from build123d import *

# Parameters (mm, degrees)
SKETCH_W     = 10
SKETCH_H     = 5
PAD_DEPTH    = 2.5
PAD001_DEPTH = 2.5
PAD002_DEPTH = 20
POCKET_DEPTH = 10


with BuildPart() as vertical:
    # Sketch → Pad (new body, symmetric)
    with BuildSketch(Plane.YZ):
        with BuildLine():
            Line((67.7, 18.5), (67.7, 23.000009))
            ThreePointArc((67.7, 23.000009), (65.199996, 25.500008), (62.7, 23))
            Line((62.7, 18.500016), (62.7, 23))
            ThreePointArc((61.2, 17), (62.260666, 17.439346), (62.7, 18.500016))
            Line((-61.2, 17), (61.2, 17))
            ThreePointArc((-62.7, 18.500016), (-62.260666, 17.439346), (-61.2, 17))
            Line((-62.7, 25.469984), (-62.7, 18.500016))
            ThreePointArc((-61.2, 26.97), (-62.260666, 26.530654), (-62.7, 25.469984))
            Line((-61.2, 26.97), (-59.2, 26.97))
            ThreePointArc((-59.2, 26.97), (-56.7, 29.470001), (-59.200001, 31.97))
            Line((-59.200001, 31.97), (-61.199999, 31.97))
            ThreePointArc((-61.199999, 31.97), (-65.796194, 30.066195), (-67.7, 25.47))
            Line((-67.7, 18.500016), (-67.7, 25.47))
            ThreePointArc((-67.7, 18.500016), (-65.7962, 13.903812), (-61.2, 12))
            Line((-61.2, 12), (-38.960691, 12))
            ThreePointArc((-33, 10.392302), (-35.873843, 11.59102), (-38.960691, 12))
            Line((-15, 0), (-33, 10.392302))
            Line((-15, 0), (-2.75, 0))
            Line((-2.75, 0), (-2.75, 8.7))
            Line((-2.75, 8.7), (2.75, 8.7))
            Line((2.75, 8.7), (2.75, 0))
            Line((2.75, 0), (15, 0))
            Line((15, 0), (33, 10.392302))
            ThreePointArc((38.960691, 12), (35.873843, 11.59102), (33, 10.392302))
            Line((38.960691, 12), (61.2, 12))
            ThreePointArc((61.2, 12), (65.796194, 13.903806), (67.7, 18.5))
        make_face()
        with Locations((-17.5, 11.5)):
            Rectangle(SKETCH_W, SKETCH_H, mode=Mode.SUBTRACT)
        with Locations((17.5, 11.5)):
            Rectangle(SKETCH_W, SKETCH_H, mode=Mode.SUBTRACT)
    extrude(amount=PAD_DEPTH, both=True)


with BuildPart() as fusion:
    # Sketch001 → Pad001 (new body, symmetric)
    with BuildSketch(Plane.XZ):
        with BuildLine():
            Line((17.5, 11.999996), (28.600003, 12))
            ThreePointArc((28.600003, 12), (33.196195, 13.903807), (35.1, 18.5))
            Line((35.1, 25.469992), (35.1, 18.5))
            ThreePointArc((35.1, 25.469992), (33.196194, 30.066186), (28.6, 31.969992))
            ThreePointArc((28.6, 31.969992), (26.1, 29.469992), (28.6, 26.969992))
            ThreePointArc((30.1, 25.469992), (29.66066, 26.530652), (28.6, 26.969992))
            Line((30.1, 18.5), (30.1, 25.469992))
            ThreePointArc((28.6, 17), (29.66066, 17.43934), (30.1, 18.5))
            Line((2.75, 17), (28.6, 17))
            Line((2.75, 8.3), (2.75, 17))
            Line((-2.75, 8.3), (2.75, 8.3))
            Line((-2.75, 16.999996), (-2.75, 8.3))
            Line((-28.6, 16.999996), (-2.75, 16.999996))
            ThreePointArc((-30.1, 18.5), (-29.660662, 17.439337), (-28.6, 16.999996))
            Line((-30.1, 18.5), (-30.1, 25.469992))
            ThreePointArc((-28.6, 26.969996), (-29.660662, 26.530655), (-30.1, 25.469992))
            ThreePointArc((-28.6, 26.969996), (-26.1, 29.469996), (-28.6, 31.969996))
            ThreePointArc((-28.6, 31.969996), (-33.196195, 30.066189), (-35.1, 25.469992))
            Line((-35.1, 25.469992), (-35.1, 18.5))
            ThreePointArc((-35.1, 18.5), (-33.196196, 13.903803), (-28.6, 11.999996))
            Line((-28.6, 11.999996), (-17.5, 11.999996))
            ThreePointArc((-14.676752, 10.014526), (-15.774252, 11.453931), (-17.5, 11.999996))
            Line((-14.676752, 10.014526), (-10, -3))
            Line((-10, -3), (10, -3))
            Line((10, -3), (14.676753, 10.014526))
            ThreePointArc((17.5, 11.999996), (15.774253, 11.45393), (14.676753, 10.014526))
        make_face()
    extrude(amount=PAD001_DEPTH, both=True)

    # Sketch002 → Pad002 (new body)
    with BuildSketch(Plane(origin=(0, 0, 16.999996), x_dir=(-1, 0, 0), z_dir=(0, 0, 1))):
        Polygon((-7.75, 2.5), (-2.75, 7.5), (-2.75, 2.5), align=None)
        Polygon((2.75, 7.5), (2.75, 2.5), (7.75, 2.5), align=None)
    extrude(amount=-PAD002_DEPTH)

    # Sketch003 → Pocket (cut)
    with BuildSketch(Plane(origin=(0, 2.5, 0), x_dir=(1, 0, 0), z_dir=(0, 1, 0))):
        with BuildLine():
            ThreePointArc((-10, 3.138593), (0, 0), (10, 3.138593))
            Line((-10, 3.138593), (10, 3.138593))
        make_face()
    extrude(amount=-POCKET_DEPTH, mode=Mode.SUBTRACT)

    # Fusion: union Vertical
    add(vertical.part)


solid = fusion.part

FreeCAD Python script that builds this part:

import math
import FreeCAD as App
import Part
import Sketcher
Q = App.Units.Quantity


def add_polygon(sketch, points):
    """Adds a closed chain of lines whose ends are joined by coincident constraints."""
    first, n = sketch.GeometryCount, len(points)
    for a, b in zip(points, points[1:] + points[:1]):
        sketch.addGeometry(Part.LineSegment(App.Vector(*a, 0), App.Vector(*b, 0)), False)
    for i in range(n):
        sketch.addConstraint(Sketcher.Constraint("Coincident", first + i, 2, first + (i + 1) % n, 1))

doc = App.newDocument("Part")
body = doc.addObject("PartDesign::Body", "Body")

# Sketch on YZ plane
sketch1 = body.newObject("Sketcher::SketchObject", "Sketch")
sketch1.AttachmentSupport = (doc.getObject("YZ_Plane"), [""])
sketch1.MapMode = "FlatFace"
sketch1.addGeometry(Part.LineSegment(App.Vector(67.7, 18.5, 0), App.Vector(67.7, 23, 0)), False)  # 0
sketch1.addGeometry(Part.ArcOfCircle(Part.Circle(App.Vector(65.2, 23, 0), App.Vector(0, 0, 1), 2.5), math.radians(0), math.radians(180)), False)  # 1
sketch1.addGeometry(Part.LineSegment(App.Vector(62.7, 23, 0), App.Vector(62.7, 18.5, 0)), False)  # 2
sketch1.addGeometry(Part.ArcOfCircle(Part.Circle(App.Vector(61.2, 18.5, 0), App.Vector(0, 0, 1), 1.5), math.radians(-90), math.radians(0)), False)  # 3
sketch1.addGeometry(Part.LineSegment(App.Vector(61.2, 17, 0), App.Vector(-61.2, 17, 0)), False)  # 4
sketch1.addGeometry(Part.ArcOfCircle(Part.Circle(App.Vector(-61.2, 18.5, 0), App.Vector(0, 0, 1), 1.5), math.radians(180), math.radians(270)), False)  # 5
sketch1.addGeometry(Part.LineSegment(App.Vector(-62.7, 18.5, 0), App.Vector(-62.7, 25.5, 0)), False)  # 6
sketch1.addGeometry(Part.ArcOfCircle(Part.Circle(App.Vector(-61.2, 25.5, 0), App.Vector(0, 0, 1), 1.5), math.radians(90), math.radians(180)), False)  # 7
sketch1.addGeometry(Part.LineSegment(App.Vector(-61.2, 27, 0), App.Vector(-59.2, 27, 0)), False)  # 8
sketch1.addGeometry(Part.ArcOfCircle(Part.Circle(App.Vector(-59.2, 29.5, 0), App.Vector(0, 0, 1), 2.5), math.radians(-90), math.radians(90)), False)  # 9
sketch1.addGeometry(Part.LineSegment(App.Vector(-59.2, 32, 0), App.Vector(-61.2, 32, 0)), False)  # 10
sketch1.addGeometry(Part.ArcOfCircle(Part.Circle(App.Vector(-61.2, 25.5, 0), App.Vector(0, 0, 1), 6.5), math.radians(90), math.radians(180)), False)  # 11
sketch1.addGeometry(Part.LineSegment(App.Vector(-67.7, 25.5, 0), App.Vector(-67.7, 18.5, 0)), False)  # 12
sketch1.addGeometry(Part.ArcOfCircle(Part.Circle(App.Vector(-61.2, 18.5, 0), App.Vector(0, 0, 1), 6.5), math.radians(180), math.radians(270)), False)  # 13
sketch1.addGeometry(Part.LineSegment(App.Vector(-61.2, 12, 0), App.Vector(-39, 12, 0)), False)  # 14
sketch1.addGeometry(Part.ArcOfCircle(Part.Circle(App.Vector(-39, 0.1, 0), App.Vector(0, 0, 1), 11.9), math.radians(60), math.radians(90)), False)  # 15
sketch1.addGeometry(Part.LineSegment(App.Vector(-33, 10.4, 0), App.Vector(-15, 0, 0)), False)  # 16
sketch1.addGeometry(Part.LineSegment(App.Vector(-15, 0, 0), App.Vector(-2.8, 0, 0)), False)  # 17
sketch1.addGeometry(Part.LineSegment(App.Vector(-2.8, 0, 0), App.Vector(-2.8, 8.7, 0)), False)  # 18
sketch1.addGeometry(Part.LineSegment(App.Vector(-2.8, 8.7, 0), App.Vector(2.8, 8.7, 0)), False)  # 19
sketch1.addGeometry(Part.LineSegment(App.Vector(2.8, 8.7, 0), App.Vector(2.8, 0, 0)), False)  # 20
sketch1.addGeometry(Part.LineSegment(App.Vector(2.8, 0, 0), App.Vector(15, 0, 0)), False)  # 21
sketch1.addGeometry(Part.LineSegment(App.Vector(15, 0, 0), App.Vector(33, 10.4, 0)), False)  # 22
sketch1.addGeometry(Part.ArcOfCircle(Part.Circle(App.Vector(39, 0.1, 0), App.Vector(0, 0, 1), 11.9), math.radians(90), math.radians(120)), False)  # 23
sketch1.addGeometry(Part.LineSegment(App.Vector(39, 12, 0), App.Vector(61.2, 12, 0)), False)  # 24
sketch1.addGeometry(Part.ArcOfCircle(Part.Circle(App.Vector(61.2, 18.5, 0), App.Vector(0, 0, 1), 6.5), math.radians(-90), math.radians(0)), False)  # 25
add_polygon(sketch1, [(-12.5, 9), (-22.5, 9), (-22.5, 14), (-12.5, 14)])  # lines 26-29
add_polygon(sketch1, [(22.5, 9), (12.5, 9), (12.5, 14), (22.5, 14)])  # lines 30-33
sketch1.addConstraint([
    Sketcher.Constraint("Tangent", 0, 2, 1, 1),
    Sketcher.Constraint("Coincident", 1, 2, 2, 1),
    Sketcher.Constraint("Coincident", 2, 2, 3, 2),
    Sketcher.Constraint("Tangent", 3, 1, 4, 1),
    Sketcher.Constraint("Tangent", 4, 2, 5, 2),
    Sketcher.Constraint("Coincident", 5, 1, 6, 1),
    Sketcher.Constraint("Coincident", 6, 2, 7, 2),
    Sketcher.Constraint("Tangent", 7, 1, 8, 1),
    Sketcher.Constraint("Tangent", 8, 2, 9, 1),
    Sketcher.Constraint("Tangent", 9, 2, 10, 1),
    Sketcher.Constraint("Tangent", 10, 2, 11, 1),
    Sketcher.Constraint("Tangent", 11, 2, 12, 1),
    Sketcher.Constraint("Coincident", 12, 2, 13, 1),
    Sketcher.Constraint("Tangent", 13, 2, 14, 1),
    Sketcher.Constraint("Tangent", 14, 2, 15, 2),
    Sketcher.Constraint("Coincident", 15, 1, 16, 1),
    Sketcher.Constraint("Coincident", 16, 2, 17, 1),
    Sketcher.Constraint("Coincident", 17, 2, 18, 1),
    Sketcher.Constraint("Coincident", 18, 2, 19, 1),
    Sketcher.Constraint("Coincident", 19, 2, 20, 1),
    Sketcher.Constraint("Coincident", 20, 2, 21, 1),
    Sketcher.Constraint("Coincident", 21, 2, 22, 1),
    Sketcher.Constraint("Coincident", 22, 2, 23, 2),
    Sketcher.Constraint("Tangent", 23, 1, 24, 1),
    Sketcher.Constraint("Tangent", 24, 2, 25, 1),
    Sketcher.Constraint("Tangent", 25, 2, 0, 1),
    Sketcher.Constraint("Vertical", 0),
    Sketcher.Constraint("Vertical", 2),
    Sketcher.Constraint("Horizontal", 4),
    Sketcher.Constraint("Vertical", 6),
    Sketcher.Constraint("Horizontal", 8),
    Sketcher.Constraint("Horizontal", 10),
    Sketcher.Constraint("Vertical", 12),
    Sketcher.Constraint("Horizontal", 14),
    Sketcher.Constraint("Horizontal", 17),
    Sketcher.Constraint("Vertical", 18),
    Sketcher.Constraint("Horizontal", 19),
    Sketcher.Constraint("Vertical", 20),
    Sketcher.Constraint("Horizontal", 21),
    Sketcher.Constraint("Horizontal", 24),
    Sketcher.Constraint("Horizontal", 26),
    Sketcher.Constraint("Vertical", 27),
    Sketcher.Constraint("Horizontal", 28),
    Sketcher.Constraint("Vertical", 29),
    Sketcher.Constraint("Horizontal", 30),
    Sketcher.Constraint("Vertical", 31),
    Sketcher.Constraint("Horizontal", 32),
    Sketcher.Constraint("Vertical", 33),
    Sketcher.Constraint("Coincident", 11, 3, 7, 3),
    Sketcher.Constraint("Coincident", 13, 3, 5, 3),
    Sketcher.Constraint("Coincident", 25, 3, 3, 3),
    Sketcher.Constraint("Equal", 3, 5),
    Sketcher.Constraint("Equal", 5, 7),
    Sketcher.Constraint("Equal", 1, 9),
    Sketcher.Constraint("Equal", 15, 23),
    Sketcher.Constraint("Symmetric", 17, 2, 20, 2, -1, 1),
    Sketcher.Constraint("Symmetric", 2, 2, 5, 1, -2),
    Sketcher.Constraint("Symmetric", 16, 2, 21, 2, -2),
    Sketcher.Constraint("Symmetric", 15, 1, 22, 2, -2),
    Sketcher.Constraint("Symmetric", 29, 2, 30, 2, -2),
    Sketcher.Constraint("Symmetric", 27, 2, 32, 2, -2),
    Sketcher.Constraint("Horizontal", 5, 1, 12, 2),
    Sketcher.Constraint("Radius", 1, Q("2.5 mm")),
    Sketcher.Constraint("Radius", 3, Q("1.500001 mm")),
    Sketcher.Constraint("DistanceX", 8, 1, 8, 2, Q("2 mm")),
    Sketcher.Constraint("DistanceX", 26, 2, 26, 1, Q("10 mm")),
    Sketcher.Constraint("DistanceY", 27, 1, 27, 2, Q("5 mm")),
    Sketcher.Constraint("Angle", 16, Q("-29.999993 deg")),
    Sketcher.Constraint("DistanceX", 4, 2, 4, 1, Q("122.4 mm")),
    Sketcher.Constraint("DistanceX", 19, 1, 19, 2, Q("5.5 mm")),
    Sketcher.Constraint("DistanceY", 18, 1, 18, 2, Q("8.7 mm")),
    Sketcher.Constraint("DistanceY", -1, 1, 1, 2, Q("23 mm")),
    Sketcher.Constraint("DistanceY", -1, 1, 3, 1, Q("17 mm")),
    Sketcher.Constraint("DistanceX", 15, 1, -1, 1, Q("33 mm")),
    Sketcher.Constraint("DistanceX", 16, 2, -1, 1, Q("15 mm")),
    Sketcher.Constraint("DistanceY", -1, 1, 26, 2, Q("9 mm")),
    Sketcher.Constraint("DistanceX", 26, 2, -1, 1, Q("22.5 mm")),
    Sketcher.Constraint("DistanceY", -1, 1, 7, 3, Q("25.469999 mm")),
    Sketcher.Constraint("Radius", 15, Q("11.853766 mm")),
    Sketcher.Constraint("DistanceY", 0, 1, 0, 2, Q("4.500009 mm")),
    Sketcher.Constraint("DistanceY", 6, 1, 6, 2, Q("6.969968 mm")),
    Sketcher.Constraint("DistanceY", 2, 2, 2, 1, Q("4.499984 mm")),
])
pad1 = body.newObject("PartDesign::Pad", "Pad")
pad1.Profile = sketch1
pad1.Length = 5
pad1.Midplane = True
body2 = doc.addObject("PartDesign::Body", "Body001")
body2.AllowCompound = True

# Sketch on XZ plane
sketch2 = body2.newObject("Sketcher::SketchObject", "Sketch001")
sketch2.AttachmentSupport = (doc.getObject("XZ_Plane001"), [""])
sketch2.MapMode = "FlatFace"
sketch2.addGeometry([
    Part.LineSegment(App.Vector(17.5, 12, 0), App.Vector(28.6, 12, 0)),  # 0
    Part.ArcOfCircle(Part.Circle(App.Vector(28.6, 18.5, 0), App.Vector(0, 0, 1), 6.5), math.radians(-90), math.radians(0)),  # 1
    Part.LineSegment(App.Vector(35.1, 18.5, 0), App.Vector(35.1, 25.5, 0)),  # 2
    Part.ArcOfCircle(Part.Circle(App.Vector(28.6, 25.5, 0), App.Vector(0, 0, 1), 6.5), math.radians(0), math.radians(90)),  # 3
    Part.ArcOfCircle(Part.Circle(App.Vector(28.6, 29.5, 0), App.Vector(0, 0, 1), 2.5), math.radians(90), math.radians(270)),  # 4
    Part.ArcOfCircle(Part.Circle(App.Vector(28.6, 25.5, 0), App.Vector(0, 0, 1), 1.5), math.radians(0), math.radians(90)),  # 5
    Part.LineSegment(App.Vector(30.1, 25.5, 0), App.Vector(30.1, 18.5, 0)),  # 6
    Part.ArcOfCircle(Part.Circle(App.Vector(28.6, 18.5, 0), App.Vector(0, 0, 1), 1.5), math.radians(-90), math.radians(0)),  # 7
    Part.LineSegment(App.Vector(28.6, 17, 0), App.Vector(2.8, 17, 0)),  # 8
    Part.LineSegment(App.Vector(2.8, 17, 0), App.Vector(2.8, 8.3, 0)),  # 9
    Part.LineSegment(App.Vector(2.8, 8.3, 0), App.Vector(-2.8, 8.3, 0)),  # 10
    Part.LineSegment(App.Vector(-2.8, 8.3, 0), App.Vector(-2.8, 17, 0)),  # 11
    Part.LineSegment(App.Vector(-2.8, 17, 0), App.Vector(-28.6, 17, 0)),  # 12
    Part.ArcOfCircle(Part.Circle(App.Vector(-28.6, 18.5, 0), App.Vector(0, 0, 1), 1.5), math.radians(180), math.radians(270)),  # 13
    Part.LineSegment(App.Vector(-30.1, 18.5, 0), App.Vector(-30.1, 25.5, 0)),  # 14
    Part.ArcOfCircle(Part.Circle(App.Vector(-28.6, 25.5, 0), App.Vector(0, 0, 1), 1.5), math.radians(90), math.radians(180)),  # 15
    Part.ArcOfCircle(Part.Circle(App.Vector(-28.6, 29.5, 0), App.Vector(0, 0, 1), 2.5), math.radians(-90), math.radians(90)),  # 16
    Part.ArcOfCircle(Part.Circle(App.Vector(-28.6, 25.5, 0), App.Vector(0, 0, 1), 6.5), math.radians(90), math.radians(180)),  # 17
    Part.LineSegment(App.Vector(-35.1, 25.5, 0), App.Vector(-35.1, 18.5, 0)),  # 18
    Part.ArcOfCircle(Part.Circle(App.Vector(-28.6, 18.5, 0), App.Vector(0, 0, 1), 6.5), math.radians(180), math.radians(270)),  # 19
    Part.LineSegment(App.Vector(-28.6, 12, 0), App.Vector(-17.5, 12, 0)),  # 20
    Part.ArcOfCircle(Part.Circle(App.Vector(-17.5, 9, 0), App.Vector(0, 0, 1), 3), math.radians(20), math.radians(90)),  # 21
    Part.LineSegment(App.Vector(-14.7, 10, 0), App.Vector(-10, -3, 0)),  # 22
    Part.LineSegment(App.Vector(-10, -3, 0), App.Vector(10, -3, 0)),  # 23
    Part.LineSegment(App.Vector(10, -3, 0), App.Vector(14.7, 10, 0)),  # 24
    Part.ArcOfCircle(Part.Circle(App.Vector(17.5, 9, 0), App.Vector(0, 0, 1), 3), math.radians(90), math.radians(160)),  # 25
], False)
sketch2.addConstraint([
    Sketcher.Constraint("Tangent", 0, 2, 1, 1),
    Sketcher.Constraint("Tangent", 1, 2, 2, 1),
    Sketcher.Constraint("Tangent", 2, 2, 3, 1),
    Sketcher.Constraint("Tangent", 3, 2, 4, 1),
    Sketcher.Constraint("Tangent", 4, 2, 5, 2),
    Sketcher.Constraint("Tangent", 5, 1, 6, 1),
    Sketcher.Constraint("Tangent", 6, 2, 7, 2),
    Sketcher.Constraint("Tangent", 7, 1, 8, 1),
    Sketcher.Constraint("Coincident", 8, 2, 9, 1),
    Sketcher.Constraint("Coincident", 9, 2, 10, 1),
    Sketcher.Constraint("Coincident", 10, 2, 11, 1),
    Sketcher.Constraint("Coincident", 11, 2, 12, 1),
    Sketcher.Constraint("Tangent", 12, 2, 13, 2),
    Sketcher.Constraint("Coincident", 13, 1, 14, 1),
    Sketcher.Constraint("Coincident", 14, 2, 15, 2),
    Sketcher.Constraint("Tangent", 15, 1, 16, 1),
    Sketcher.Constraint("Tangent", 16, 2, 17, 1),
    Sketcher.Constraint("Tangent", 17, 2, 18, 1),
    Sketcher.Constraint("Tangent", 18, 2, 19, 1),
    Sketcher.Constraint("Tangent", 19, 2, 20, 1),
    Sketcher.Constraint("Tangent", 20, 2, 21, 2),
    Sketcher.Constraint("Tangent", 21, 1, 22, 1),
    Sketcher.Constraint("Coincident", 22, 2, 23, 1),
    Sketcher.Constraint("Coincident", 23, 2, 24, 1),
    Sketcher.Constraint("Tangent", 24, 2, 25, 2),
    Sketcher.Constraint("Tangent", 25, 1, 0, 1),
    Sketcher.Constraint("Vertical", 2),
    Sketcher.Constraint("Vertical", 6),
    Sketcher.Constraint("Horizontal", 8),
    Sketcher.Constraint("Vertical", 9),
    Sketcher.Constraint("Horizontal", 10),
    Sketcher.Constraint("Vertical", 11),
    Sketcher.Constraint("Horizontal", 12),
    Sketcher.Constraint("Vertical", 14),
    Sketcher.Constraint("Vertical", 18),
    Sketcher.Constraint("Horizontal", 20),
    Sketcher.Constraint("Horizontal", 23),
    Sketcher.Constraint("Coincident", 5, 3, 3, 3),
    Sketcher.Constraint("Coincident", 7, 3, 1, 3),
    Sketcher.Constraint("Coincident", 17, 3, 15, 3),
    Sketcher.Constraint("Coincident", 19, 3, 13, 3),
    Sketcher.Constraint("Equal", 1, 3),
    Sketcher.Constraint("Equal", 7, 13),
    Sketcher.Constraint("Equal", 13, 15),
    Sketcher.Constraint("Equal", 4, 16),
    Sketcher.Constraint("Symmetric", 1, 3, 13, 3, -2),
    Sketcher.Constraint("Symmetric", 4, 3, 16, 3, -2),
    Sketcher.Constraint("Symmetric", 21, 3, 25, 3, -2),
    Sketcher.Constraint("Symmetric", 21, 1, 24, 2, -2),
    Sketcher.Constraint("Horizontal", 6, 2, 13, 1),
    Sketcher.Constraint("Horizontal", 5, 1, 14, 2),
    Sketcher.Constraint("Vertical", 3, 3, 4, 3),
    Sketcher.Constraint("Equal", 8, 12),
    Sketcher.Constraint("Radius", 25, Q("3.000002 mm")),
    Sketcher.Constraint("Radius", 1, Q("6.5 mm")),
    Sketcher.Constraint("Radius", 4, Q("2.5 mm")),
    Sketcher.Constraint("DistanceX", 23, 1, 23, 2, Q("20 mm")),
    Sketcher.Constraint("DistanceX", 10, 2, 10, 1, Q("5.5 mm")),
    Sketcher.Constraint("DistanceX", 20, 1, 20, 2, Q("11.1 mm")),
    Sketcher.Constraint("DistanceY", 9, 2, 9, 1, Q("8.7 mm")),
    Sketcher.Constraint("DistanceY", -1, 1, 21, 3, Q("8.999998 mm")),
    Sketcher.Constraint("DistanceY", 22, 2, -1, 1, Q("3 mm")),
    Sketcher.Constraint("DistanceX", 8, 2, 8, 1, Q("25.85 mm")),
    Sketcher.Constraint("DistanceY", 13, 3, 16, 3, Q("10.970001 mm")),
])
pad2 = body2.newObject("PartDesign::Pad", "Pad001")
pad2.Profile = sketch2
pad2.Length = 5
pad2.Midplane = True

# Sketch on XY plane
sketch3 = body2.newObject("Sketcher::SketchObject", "Sketch002")
sketch3.AttachmentSupport = (doc.getObject("XY_Plane001"), [""])
sketch3.MapMode = "FlatFace"
sketch3.AttachmentOffset = App.Placement(App.Vector(0, 0, 16.999996), App.Rotation())
add_polygon(sketch3, [(3, -8), (8, -2), (3, -2)])  # lines 0-2
add_polygon(sketch3, [(-3, -8), (-3, -2), (-8, -2)])  # lines 3-5
sketch3.addConstraint([
    Sketcher.Constraint("Horizontal", 1),
    Sketcher.Constraint("Vertical", 2),
    Sketcher.Constraint("Vertical", 3),
    Sketcher.Constraint("Horizontal", 4),
    Sketcher.Constraint("Symmetric", 1, 2, 3, 2, -2),
    Sketcher.Constraint("Perpendicular", 0, 5),
    Sketcher.Constraint("Horizontal", 2, 2, 5, 2),
    Sketcher.Constraint("Equal", 1, 4),
    Sketcher.Constraint("DistanceX", 1, 2, 1, 1, Q("5 mm")),
    Sketcher.Constraint("DistanceY", 0, 2, -1, 1, Q("2.5 mm")),
    Sketcher.Constraint("DistanceX", 3, 2, 1, 2, Q("5.5 mm")),
])
pad3 = body2.newObject("PartDesign::Pad", "Pad002")
pad3.Profile = sketch3
pad3.Length = 20
pad3.Reversed = True

# Sketch on XZ plane
sketch4 = body2.newObject("Sketcher::SketchObject", "Sketch003")
sketch4.AttachmentSupport = (doc.getObject("XZ_Plane001"), [""])
sketch4.MapMode = "FlatFace"
sketch4.AttachmentOffset = App.Placement(App.Vector(0, 0, -2.5), App.Rotation())
sketch4.addGeometry([
    Part.ArcOfCircle(Part.Circle(App.Vector(0, -18, 0), App.Vector(0, 0, 1), 18), math.radians(55), math.radians(125)),
    Part.LineSegment(App.Vector(10, -3, 0), App.Vector(-10, -3, 0)),
], False)
sketch4.addConstraint([
    Sketcher.Constraint("Coincident", 0, 1, 1, 1),
    Sketcher.Constraint("Coincident", 1, 2, 0, 2),
    Sketcher.Constraint("Horizontal", 1),
    Sketcher.Constraint("PointOnObject", 0, 3, -2),
    Sketcher.Constraint("Radius", 0, Q("17.500002 mm")),
    Sketcher.Constraint("DistanceX", 1, 2, 1, 1, Q("20 mm")),
    Sketcher.Constraint("DistanceY", 0, 3, -1, 1, Q("17.500002 mm")),
])
pocket1 = body2.newObject("PartDesign::Pocket", "Pocket")
pocket1.Profile = sketch4
pocket1.Length = 10
pocket1.Reversed = True
doc.recompute()

boolean = body2.newObject("PartDesign::Boolean", "Boolean")
boolean.Type = "Fuse"
boolean.addObjects([body])

doc.recompute()
